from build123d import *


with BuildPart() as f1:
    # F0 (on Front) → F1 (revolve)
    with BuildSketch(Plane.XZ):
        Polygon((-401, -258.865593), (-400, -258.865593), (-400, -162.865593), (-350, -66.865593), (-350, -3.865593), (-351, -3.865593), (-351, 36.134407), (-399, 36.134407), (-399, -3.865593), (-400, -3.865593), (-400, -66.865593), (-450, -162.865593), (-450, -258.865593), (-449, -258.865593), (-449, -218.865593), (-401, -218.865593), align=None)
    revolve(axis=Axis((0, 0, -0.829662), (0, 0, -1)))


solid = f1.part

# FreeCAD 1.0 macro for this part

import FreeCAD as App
import Part
import Sketcher
Q = App.Units.Quantity


def add_polygon(sketch, points):
    """Adds a closed chain of lines whose ends are joined by coincident constraints."""
    first, n = sketch.GeometryCount, len(points)
    for a, b in zip(points, points[1:] + points[:1]):
        sketch.addGeometry(Part.LineSegment(App.Vector(*a, 0), App.Vector(*b, 0)), False)
    for i in range(n):
        sketch.addConstraint(Sketcher.Constraint("Coincident", first + i, 2, first + (i + 1) % n, 1))

doc = App.newDocument("Part")
body = doc.addObject("PartDesign::Body", "Body")

# Sketch on XZ plane
sketch1 = body.newObject("Sketcher::SketchObject", "Sketch")
sketch1.AttachmentSupport = (doc.getObject("XZ_Plane"), [""])
sketch1.MapMode = "FlatFace"
add_polygon(sketch1, [(-401, -258.9), (-400, -258.9), (-400, -162.9), (-350, -66.9), (-350, -3.9), (-351, -3.9), (-351, 36.1), (-399, 36.1), (-399, -3.9), (-400, -3.9), (-400, -66.9), (-450, -162.9), (-450, -258.9), (-449, -258.9), (-449, -218.9), (-401, -218.9)])  # lines 0-15
sketch1.addConstraint(Sketcher.Constraint("Horizontal", 0))
sketch1.addConstraint(Sketcher.Constraint("Vertical", 1))
sketch1.addConstraint(Sketcher.Constraint("Vertical", 3))
sketch1.addConstraint(Sketcher.Constraint("Horizontal", 4))
sketch1.addConstraint(Sketcher.Constraint("Vertical", 5))
sketch1.addConstraint(Sketcher.Constraint("Horizontal", 6))
sketch1.addConstraint(Sketcher.Constraint("Vertical", 7))
sketch1.addConstraint(Sketcher.Constraint("Horizontal", 8))
sketch1.addConstraint(Sketcher.Constraint("Vertical", 9))
sketch1.addConstraint(Sketcher.Constraint("Vertical", 11))
sketch1.addConstraint(Sketcher.Constraint("Horizontal", 12))
sketch1.addConstraint(Sketcher.Constraint("Vertical", 13))
sketch1.addConstraint(Sketcher.Constraint("Horizontal", 14))
sketch1.addConstraint(Sketcher.Constraint("Vertical", 15))
sketch1.addConstraint(Sketcher.Constraint("Parallel", 2, 10))
sketch1.addConstraint(Sketcher.Constraint("Horizontal", 4, 2, 7, 2))
sketch1.addConstraint(Sketcher.Constraint("Horizontal", 2, 2, 9, 2))
sketch1.addConstraint(Sketcher.Constraint("Horizontal", 1, 2, 10, 2))
sketch1.addConstraint(Sketcher.Constraint("Horizontal", 0, 2, 11, 2))
sketch1.addConstraint(Sketcher.Constraint("Vertical", 1, 2, 8, 2))
sketch1.addConstraint(Sketcher.Constraint("Equal", 0, 4))
sketch1.addConstraint(Sketcher.Constraint("Equal", 4, 8))
sketch1.addConstraint(Sketcher.Constraint("Equal", 8, 12))
sketch1.addConstraint(Sketcher.Constraint("Equal", 7, 13))
sketch1.addConstraint(Sketcher.Constraint("DistanceX", 0, 1, 0, 2, Q("1 mm")))
sketch1.addConstraint(Sketcher.Constraint("DistanceX", 6, 2, 6, 1, Q("48 mm")))
sketch1.addConstraint(Sketcher.Constraint("DistanceY", 1, 1, 1, 2, Q("96 mm")))
sketch1.addConstraint(Sketcher.Constraint("DistanceY", 3, 1, 3, 2, Q("63 mm")))
sketch1.addConstraint(Sketcher.Constraint("DistanceY", 5, 1, 5, 2, Q("40 mm")))
sketch1.addConstraint(Sketcher.Constraint("DistanceX", 0, 2, -1, 1, Q("400 mm")))
sketch1.addConstraint(Sketcher.Constraint("DistanceY", 1, 2, 2, 2, Q("96 mm")))
sketch1.addConstraint(Sketcher.Constraint("DistanceY", 0, 2, -1, 1, Q("258.865593 mm")))
revolution = body.newObject("PartDesign::Revolution", "Revolution")
revolution.Profile = sketch1
revolution.ReferenceAxis = (sketch1, ["V_Axis"])
revolution.Angle = 360

doc.recompute()
